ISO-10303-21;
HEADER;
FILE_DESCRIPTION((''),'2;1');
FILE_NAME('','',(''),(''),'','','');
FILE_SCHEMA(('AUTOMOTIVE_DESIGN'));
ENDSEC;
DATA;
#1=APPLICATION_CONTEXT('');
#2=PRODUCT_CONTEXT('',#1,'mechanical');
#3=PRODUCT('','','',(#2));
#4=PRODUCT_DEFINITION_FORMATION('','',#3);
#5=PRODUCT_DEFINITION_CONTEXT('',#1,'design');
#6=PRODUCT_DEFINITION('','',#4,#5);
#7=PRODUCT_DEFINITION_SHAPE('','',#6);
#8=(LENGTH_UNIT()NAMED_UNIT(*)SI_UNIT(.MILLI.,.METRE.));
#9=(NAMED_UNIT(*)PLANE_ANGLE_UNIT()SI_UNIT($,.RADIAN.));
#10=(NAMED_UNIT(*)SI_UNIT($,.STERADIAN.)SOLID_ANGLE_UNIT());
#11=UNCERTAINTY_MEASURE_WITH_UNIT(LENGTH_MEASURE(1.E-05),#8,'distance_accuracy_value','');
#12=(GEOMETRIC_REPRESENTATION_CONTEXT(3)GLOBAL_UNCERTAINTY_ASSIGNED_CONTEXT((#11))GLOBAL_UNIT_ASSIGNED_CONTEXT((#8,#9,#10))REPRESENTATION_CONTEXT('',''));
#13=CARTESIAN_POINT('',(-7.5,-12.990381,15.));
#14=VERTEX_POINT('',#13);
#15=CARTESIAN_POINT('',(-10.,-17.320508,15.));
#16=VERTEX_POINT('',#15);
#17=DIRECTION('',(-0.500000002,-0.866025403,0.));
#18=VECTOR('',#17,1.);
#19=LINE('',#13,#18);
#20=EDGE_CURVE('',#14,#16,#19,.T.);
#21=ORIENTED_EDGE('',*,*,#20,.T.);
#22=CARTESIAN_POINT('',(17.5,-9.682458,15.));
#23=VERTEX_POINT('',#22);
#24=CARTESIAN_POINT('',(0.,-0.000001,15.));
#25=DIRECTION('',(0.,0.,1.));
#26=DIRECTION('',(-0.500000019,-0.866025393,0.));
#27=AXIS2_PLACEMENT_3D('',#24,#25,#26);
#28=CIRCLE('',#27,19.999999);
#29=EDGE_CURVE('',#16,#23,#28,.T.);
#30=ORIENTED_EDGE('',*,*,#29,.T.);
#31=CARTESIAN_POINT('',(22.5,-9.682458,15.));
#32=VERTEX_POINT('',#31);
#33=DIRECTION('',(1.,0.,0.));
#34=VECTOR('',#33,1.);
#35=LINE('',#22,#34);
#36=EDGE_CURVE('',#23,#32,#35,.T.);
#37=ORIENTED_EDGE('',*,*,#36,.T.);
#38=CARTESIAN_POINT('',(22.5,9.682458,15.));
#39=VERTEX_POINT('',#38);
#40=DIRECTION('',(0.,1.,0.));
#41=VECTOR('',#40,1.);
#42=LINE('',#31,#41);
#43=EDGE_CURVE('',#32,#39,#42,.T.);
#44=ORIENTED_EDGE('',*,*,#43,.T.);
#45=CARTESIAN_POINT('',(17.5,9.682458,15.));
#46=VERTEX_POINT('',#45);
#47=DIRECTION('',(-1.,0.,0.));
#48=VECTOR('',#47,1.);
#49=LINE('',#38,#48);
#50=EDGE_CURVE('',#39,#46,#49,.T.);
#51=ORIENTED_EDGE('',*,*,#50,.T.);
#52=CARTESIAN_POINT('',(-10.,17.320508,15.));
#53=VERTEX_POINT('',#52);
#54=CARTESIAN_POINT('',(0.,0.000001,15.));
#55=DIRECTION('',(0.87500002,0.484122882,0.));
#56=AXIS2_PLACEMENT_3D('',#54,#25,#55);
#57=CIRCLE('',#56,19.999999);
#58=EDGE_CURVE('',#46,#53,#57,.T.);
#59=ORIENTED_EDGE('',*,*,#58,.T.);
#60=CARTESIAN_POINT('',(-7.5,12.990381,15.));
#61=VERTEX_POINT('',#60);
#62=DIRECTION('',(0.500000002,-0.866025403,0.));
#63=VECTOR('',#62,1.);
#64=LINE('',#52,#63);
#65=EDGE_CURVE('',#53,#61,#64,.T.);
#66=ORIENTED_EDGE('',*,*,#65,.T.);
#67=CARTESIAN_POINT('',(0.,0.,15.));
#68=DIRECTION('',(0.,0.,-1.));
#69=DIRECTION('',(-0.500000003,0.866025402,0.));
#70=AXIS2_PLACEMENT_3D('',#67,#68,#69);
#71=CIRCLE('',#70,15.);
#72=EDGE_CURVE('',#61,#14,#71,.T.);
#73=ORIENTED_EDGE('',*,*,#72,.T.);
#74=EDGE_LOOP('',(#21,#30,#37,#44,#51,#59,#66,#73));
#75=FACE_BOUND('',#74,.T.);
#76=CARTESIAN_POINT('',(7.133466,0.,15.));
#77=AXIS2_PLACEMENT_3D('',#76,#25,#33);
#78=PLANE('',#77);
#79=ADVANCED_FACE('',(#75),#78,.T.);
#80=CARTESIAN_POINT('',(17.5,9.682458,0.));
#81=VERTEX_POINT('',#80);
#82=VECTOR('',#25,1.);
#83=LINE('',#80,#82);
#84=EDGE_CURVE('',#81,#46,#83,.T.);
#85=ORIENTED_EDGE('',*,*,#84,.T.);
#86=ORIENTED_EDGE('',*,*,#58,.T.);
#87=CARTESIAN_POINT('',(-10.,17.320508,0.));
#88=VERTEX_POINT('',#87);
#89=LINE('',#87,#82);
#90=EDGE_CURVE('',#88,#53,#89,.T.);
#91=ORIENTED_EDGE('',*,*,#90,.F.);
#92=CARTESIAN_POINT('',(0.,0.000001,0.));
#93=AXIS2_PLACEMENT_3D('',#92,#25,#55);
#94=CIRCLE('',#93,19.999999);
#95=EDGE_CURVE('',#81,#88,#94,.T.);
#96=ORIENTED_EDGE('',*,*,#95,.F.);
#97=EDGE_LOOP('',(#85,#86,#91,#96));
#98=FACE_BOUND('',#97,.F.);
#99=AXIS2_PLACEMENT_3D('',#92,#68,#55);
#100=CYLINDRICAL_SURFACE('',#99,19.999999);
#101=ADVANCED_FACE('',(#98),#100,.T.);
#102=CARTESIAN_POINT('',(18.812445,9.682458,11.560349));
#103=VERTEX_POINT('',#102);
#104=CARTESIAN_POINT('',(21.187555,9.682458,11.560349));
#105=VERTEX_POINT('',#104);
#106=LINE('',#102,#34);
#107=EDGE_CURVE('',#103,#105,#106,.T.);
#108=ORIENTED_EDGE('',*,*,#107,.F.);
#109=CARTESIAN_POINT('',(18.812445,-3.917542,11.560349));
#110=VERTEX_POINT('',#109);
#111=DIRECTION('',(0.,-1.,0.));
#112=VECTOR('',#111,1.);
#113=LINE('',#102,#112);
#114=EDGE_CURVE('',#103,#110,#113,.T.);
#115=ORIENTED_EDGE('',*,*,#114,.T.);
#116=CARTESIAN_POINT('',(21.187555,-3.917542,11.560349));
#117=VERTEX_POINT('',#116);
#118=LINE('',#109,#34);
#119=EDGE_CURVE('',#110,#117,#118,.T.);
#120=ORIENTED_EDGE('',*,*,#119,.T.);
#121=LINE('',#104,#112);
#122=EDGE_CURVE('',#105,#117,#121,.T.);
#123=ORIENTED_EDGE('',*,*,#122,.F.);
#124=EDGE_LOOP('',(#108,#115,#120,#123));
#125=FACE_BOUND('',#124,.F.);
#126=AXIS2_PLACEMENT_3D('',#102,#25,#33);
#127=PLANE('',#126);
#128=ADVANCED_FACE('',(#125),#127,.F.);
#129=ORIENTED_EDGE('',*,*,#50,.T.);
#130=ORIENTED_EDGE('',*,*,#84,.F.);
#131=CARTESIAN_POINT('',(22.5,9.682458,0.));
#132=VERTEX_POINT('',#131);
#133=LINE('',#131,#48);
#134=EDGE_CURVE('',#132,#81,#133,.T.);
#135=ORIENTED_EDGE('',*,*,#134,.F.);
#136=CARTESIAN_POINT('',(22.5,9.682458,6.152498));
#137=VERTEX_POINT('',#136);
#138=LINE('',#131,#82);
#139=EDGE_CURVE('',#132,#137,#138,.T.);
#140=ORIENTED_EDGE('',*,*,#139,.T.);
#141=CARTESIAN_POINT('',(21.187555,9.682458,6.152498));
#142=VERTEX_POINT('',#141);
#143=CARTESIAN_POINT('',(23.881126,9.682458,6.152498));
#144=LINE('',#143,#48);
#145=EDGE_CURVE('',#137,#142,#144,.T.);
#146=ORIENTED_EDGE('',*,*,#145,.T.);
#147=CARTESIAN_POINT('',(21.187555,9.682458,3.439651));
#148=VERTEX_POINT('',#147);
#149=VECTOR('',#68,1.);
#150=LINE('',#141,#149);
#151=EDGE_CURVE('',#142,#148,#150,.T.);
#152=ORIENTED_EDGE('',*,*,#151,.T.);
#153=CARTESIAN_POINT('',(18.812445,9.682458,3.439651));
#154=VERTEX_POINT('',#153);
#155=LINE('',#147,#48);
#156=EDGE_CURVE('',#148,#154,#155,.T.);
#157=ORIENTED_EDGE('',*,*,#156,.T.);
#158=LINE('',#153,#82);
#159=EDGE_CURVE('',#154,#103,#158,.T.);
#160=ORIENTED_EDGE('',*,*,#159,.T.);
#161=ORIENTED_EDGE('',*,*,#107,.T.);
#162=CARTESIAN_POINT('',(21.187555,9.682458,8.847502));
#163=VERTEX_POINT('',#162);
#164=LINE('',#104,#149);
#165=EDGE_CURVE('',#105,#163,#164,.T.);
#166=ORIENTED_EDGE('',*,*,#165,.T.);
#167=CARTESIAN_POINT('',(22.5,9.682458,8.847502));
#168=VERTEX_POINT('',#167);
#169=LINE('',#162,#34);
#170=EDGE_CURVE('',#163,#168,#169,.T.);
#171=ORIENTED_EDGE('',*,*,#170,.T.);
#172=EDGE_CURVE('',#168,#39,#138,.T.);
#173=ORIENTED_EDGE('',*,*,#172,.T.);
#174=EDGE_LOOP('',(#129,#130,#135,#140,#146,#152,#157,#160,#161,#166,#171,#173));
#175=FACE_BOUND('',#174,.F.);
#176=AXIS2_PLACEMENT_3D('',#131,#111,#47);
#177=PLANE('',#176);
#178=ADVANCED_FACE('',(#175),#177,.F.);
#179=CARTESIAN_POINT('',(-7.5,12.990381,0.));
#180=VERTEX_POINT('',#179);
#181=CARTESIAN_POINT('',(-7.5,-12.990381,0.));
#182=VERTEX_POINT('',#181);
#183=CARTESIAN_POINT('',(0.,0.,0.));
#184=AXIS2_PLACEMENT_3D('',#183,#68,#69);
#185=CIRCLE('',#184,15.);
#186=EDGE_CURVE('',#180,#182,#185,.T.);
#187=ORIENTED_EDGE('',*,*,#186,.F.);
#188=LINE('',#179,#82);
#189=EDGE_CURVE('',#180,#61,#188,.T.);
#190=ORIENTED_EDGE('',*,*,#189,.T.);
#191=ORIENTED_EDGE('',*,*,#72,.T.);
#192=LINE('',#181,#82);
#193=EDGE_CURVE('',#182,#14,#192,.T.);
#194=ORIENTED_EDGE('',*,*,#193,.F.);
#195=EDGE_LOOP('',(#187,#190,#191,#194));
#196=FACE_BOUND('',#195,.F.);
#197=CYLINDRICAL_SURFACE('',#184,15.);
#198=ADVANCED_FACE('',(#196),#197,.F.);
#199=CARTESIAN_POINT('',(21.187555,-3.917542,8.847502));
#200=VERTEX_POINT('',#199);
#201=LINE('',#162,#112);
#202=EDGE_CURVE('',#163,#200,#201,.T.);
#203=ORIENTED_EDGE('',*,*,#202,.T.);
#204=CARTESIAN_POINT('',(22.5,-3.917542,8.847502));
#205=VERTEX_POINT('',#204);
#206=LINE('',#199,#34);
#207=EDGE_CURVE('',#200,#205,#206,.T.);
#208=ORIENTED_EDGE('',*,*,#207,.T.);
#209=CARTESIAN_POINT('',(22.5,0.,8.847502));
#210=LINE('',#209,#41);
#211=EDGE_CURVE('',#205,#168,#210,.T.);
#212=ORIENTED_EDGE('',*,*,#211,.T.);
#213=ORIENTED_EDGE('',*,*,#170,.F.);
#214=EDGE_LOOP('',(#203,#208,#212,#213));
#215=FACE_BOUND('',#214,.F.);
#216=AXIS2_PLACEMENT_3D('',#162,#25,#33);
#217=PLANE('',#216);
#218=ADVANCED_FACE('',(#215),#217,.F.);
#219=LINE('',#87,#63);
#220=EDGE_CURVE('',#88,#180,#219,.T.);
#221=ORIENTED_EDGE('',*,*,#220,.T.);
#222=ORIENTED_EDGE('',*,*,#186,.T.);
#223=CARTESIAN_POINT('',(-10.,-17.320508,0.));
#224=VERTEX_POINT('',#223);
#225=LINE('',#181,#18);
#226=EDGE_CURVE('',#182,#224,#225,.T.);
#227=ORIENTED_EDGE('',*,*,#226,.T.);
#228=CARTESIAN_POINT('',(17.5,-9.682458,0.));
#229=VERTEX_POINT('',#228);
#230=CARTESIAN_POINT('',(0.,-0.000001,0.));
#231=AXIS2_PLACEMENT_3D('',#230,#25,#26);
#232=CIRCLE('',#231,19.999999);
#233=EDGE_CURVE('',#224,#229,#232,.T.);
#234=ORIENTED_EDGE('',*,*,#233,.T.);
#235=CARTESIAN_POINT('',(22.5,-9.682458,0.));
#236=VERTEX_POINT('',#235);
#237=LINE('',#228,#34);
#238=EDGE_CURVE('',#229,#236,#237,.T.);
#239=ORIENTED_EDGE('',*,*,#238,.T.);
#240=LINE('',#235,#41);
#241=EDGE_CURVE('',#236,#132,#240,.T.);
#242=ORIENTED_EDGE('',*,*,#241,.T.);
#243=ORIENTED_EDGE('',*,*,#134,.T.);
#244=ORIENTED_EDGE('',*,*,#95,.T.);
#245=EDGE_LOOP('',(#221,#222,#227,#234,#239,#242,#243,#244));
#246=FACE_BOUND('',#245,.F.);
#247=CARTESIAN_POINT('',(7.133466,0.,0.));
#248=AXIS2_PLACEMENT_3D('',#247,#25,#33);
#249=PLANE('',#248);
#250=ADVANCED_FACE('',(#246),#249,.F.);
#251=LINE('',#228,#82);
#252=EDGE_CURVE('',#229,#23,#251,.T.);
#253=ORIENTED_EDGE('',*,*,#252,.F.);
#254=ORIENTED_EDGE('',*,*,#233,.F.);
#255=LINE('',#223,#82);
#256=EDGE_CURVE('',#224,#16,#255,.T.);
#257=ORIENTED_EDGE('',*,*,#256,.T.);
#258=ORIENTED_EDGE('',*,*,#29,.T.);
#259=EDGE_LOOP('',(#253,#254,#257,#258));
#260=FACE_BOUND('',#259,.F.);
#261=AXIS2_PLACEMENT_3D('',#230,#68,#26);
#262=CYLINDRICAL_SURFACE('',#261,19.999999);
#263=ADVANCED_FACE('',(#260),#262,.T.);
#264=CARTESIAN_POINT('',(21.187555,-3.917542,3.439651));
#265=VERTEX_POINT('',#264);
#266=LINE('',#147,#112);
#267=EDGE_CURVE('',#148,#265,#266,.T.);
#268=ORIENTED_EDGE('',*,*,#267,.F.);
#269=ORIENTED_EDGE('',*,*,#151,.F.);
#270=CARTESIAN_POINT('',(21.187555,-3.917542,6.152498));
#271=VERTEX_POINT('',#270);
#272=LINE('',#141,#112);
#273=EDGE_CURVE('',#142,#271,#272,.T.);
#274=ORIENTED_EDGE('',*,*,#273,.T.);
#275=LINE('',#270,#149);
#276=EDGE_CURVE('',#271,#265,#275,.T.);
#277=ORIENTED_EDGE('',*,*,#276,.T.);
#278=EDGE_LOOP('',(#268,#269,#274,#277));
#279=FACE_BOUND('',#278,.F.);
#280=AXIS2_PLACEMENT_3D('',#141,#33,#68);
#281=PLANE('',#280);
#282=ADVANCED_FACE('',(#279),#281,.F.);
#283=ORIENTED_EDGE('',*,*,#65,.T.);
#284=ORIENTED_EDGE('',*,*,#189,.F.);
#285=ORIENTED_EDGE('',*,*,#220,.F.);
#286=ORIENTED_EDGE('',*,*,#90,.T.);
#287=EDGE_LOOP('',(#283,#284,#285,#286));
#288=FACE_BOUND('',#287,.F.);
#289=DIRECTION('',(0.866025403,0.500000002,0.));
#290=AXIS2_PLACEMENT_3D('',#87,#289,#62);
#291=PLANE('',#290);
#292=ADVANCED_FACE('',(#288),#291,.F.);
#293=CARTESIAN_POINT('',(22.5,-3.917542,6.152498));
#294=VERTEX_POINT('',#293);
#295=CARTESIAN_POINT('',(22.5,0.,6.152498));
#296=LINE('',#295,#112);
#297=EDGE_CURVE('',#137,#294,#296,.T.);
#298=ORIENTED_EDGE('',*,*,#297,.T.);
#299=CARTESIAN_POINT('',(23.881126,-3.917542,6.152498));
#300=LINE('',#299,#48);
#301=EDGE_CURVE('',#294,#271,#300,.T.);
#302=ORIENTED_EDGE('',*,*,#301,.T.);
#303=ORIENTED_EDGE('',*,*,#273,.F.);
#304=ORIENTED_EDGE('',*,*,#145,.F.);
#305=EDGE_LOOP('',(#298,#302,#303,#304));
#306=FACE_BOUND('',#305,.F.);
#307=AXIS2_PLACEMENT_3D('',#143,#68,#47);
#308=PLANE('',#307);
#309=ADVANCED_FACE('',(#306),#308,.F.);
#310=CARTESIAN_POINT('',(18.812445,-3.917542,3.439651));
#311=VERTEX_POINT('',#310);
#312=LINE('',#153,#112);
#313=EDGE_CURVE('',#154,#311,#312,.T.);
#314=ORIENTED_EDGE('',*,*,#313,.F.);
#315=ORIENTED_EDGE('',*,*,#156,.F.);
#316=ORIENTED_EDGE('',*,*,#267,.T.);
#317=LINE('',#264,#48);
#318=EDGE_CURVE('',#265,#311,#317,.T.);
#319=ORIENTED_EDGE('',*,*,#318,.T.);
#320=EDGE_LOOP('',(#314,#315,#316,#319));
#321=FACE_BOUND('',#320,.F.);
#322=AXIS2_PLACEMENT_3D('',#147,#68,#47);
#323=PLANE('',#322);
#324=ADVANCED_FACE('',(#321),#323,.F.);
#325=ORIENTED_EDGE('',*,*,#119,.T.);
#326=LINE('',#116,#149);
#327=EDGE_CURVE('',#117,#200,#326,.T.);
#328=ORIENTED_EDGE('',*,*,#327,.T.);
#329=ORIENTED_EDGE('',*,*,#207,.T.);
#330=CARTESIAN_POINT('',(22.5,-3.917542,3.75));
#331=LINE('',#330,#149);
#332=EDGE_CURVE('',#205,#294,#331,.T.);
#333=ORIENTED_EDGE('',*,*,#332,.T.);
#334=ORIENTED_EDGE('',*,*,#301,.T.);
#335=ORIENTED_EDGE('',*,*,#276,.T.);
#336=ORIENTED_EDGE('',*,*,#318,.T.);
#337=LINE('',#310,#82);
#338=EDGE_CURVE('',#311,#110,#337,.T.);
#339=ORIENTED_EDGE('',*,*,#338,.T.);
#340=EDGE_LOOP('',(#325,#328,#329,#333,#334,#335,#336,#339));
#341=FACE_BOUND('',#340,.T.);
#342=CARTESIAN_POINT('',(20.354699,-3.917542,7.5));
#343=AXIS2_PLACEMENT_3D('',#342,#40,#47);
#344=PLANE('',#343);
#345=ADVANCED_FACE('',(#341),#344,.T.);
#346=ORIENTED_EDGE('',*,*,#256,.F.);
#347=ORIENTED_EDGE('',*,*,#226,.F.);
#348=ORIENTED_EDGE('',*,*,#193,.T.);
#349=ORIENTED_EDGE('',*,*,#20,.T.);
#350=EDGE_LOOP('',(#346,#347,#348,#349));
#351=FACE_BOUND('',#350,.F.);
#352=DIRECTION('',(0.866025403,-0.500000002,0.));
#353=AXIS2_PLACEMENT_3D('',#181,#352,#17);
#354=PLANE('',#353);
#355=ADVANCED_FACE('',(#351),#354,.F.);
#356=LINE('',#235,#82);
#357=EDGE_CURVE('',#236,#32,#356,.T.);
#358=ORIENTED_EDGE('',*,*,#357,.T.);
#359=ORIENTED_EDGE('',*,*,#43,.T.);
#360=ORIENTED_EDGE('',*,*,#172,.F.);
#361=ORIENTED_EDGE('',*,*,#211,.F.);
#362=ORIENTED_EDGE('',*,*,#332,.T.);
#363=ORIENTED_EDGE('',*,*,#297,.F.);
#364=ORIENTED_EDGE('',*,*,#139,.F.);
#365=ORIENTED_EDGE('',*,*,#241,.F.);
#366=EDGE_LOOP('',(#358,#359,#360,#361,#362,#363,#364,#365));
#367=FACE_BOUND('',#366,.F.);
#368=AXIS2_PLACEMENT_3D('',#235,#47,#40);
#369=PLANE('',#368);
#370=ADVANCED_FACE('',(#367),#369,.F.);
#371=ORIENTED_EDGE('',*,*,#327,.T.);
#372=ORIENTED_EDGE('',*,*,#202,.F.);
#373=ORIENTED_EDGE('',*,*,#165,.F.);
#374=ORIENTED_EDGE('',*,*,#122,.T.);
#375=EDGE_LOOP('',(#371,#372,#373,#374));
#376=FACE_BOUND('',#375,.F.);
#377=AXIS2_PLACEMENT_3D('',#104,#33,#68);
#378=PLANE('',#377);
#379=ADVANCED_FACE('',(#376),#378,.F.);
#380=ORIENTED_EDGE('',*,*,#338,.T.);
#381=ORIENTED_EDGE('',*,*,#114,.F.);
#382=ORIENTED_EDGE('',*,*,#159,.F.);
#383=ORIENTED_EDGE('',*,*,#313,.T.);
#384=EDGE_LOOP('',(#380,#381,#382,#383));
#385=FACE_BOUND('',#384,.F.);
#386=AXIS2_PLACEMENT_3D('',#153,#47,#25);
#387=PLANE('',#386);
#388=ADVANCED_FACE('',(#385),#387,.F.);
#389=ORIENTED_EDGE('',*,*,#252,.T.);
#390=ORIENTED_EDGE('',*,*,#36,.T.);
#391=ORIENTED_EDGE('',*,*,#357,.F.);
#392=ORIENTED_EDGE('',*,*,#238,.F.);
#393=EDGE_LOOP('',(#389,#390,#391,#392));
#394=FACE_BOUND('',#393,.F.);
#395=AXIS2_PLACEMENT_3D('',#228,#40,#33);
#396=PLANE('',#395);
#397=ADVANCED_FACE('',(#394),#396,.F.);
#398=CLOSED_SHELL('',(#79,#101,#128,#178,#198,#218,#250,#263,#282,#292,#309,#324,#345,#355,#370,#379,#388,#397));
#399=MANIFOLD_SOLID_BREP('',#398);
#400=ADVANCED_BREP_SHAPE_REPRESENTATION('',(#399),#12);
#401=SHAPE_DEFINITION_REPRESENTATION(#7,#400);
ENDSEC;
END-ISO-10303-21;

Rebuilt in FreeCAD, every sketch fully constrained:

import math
import FreeCAD as App
import Part
import Sketcher
Q = App.Units.Quantity

doc = App.newDocument("Part")
body = doc.addObject("PartDesign::Body", "Body")

# Sketch on XY plane
sketch1 = body.newObject("Sketcher::SketchObject", "Sketch")
sketch1.AttachmentSupport = (doc.getObject("XY_Plane"), [""])
sketch1.MapMode = "FlatFace"
sketch1.addGeometry([
    Part.ArcOfCircle(Part.Circle(App.Vector(0, 0, 0), App.Vector(0, 0, 1), 15), math.radians(-120), math.radians(120)),  # 0
    Part.LineSegment(App.Vector(-7.5, -12.990381, 0), App.Vector(-10, -17.320508, 0)),  # 1
    Part.ArcOfCircle(Part.Circle(App.Vector(0, -0.000001, 0), App.Vector(0, 0, 1), 19.999999), math.radians(-120.000001), math.radians(-28.955022)),  # 2
    Part.LineSegment(App.Vector(17.5, -9.682458, 0), App.Vector(22.5, -9.682458, 0)),  # 3
    Part.LineSegment(App.Vector(22.5, -9.682458, 0), App.Vector(22.5, 9.682458, 0)),  # 4
    Part.LineSegment(App.Vector(22.5, 9.682458, 0), App.Vector(17.5, 9.682458, 0)),  # 5
    Part.ArcOfCircle(Part.Circle(App.Vector(0, 0.000001, 0), App.Vector(0, 0, 1), 19.999999), math.radians(28.955022), math.radians(120.000001)),  # 6
    Part.LineSegment(App.Vector(-10, 17.320508, 0), App.Vector(-7.5, 12.990381, 0)),  # 7
], False)
sketch1.addConstraint([
    Sketcher.Constraint("Coincident", 0, 1, 1, 1),
    Sketcher.Constraint("Coincident", 1, 2, 2, 1),
    Sketcher.Constraint("Coincident", 2, 2, 3, 1),
    Sketcher.Constraint("Coincident", 3, 2, 4, 1),
    Sketcher.Constraint("Coincident", 4, 2, 5, 1),
    Sketcher.Constraint("Coincident", 5, 2, 6, 1),
    Sketcher.Constraint("Coincident", 6, 2, 7, 1),
    Sketcher.Constraint("Coincident", 7, 2, 0, 2),
    Sketcher.Constraint("Horizontal", 3),
    Sketcher.Constraint("Vertical", 4),
    Sketcher.Constraint("Horizontal", 5),
    Sketcher.Constraint("Coincident", 0, 3, -1, 1),
    Sketcher.Constraint("Coincident", 2, 3, -1, 1),
    Sketcher.Constraint("Coincident", 6, 3, -1, 1),
    Sketcher.Constraint("Equal", 2, 6),
    Sketcher.Constraint("Vertical", 2, 2, 5, 2),
    Sketcher.Constraint("Vertical", 1, 2, 6, 2),
    Sketcher.Constraint("Vertical", 0, 1, 7, 2),
    Sketcher.Constraint("Radius", 0, Q("15 mm")),
    Sketcher.Constraint("Radius", 2, Q("19.999999 mm")),
    Sketcher.Constraint("DistanceX", 3, 1, 3, 2, Q("5 mm")),
    Sketcher.Constraint("Angle", 1, Q("-120 deg")),
    Sketcher.Constraint("DistanceX", 1, 2, -1, 1, Q("10 mm")),
    Sketcher.Constraint("DistanceX", 0, 1, 2, 2, Q("25 mm")),
])
pad1 = body.newObject("PartDesign::Pad", "Pad")
pad1.Profile = sketch1
pad1.Length = 15

# Sketch on XZ plane
sketch2 = body.newObject("Sketcher::SketchObject", "Sketch001")
sketch2.AttachmentSupport = (doc.getObject("XZ_Plane"), [""])
sketch2.MapMode = "FlatFace"
sketch2.AttachmentOffset = App.Placement(App.Vector(0, 0, -9.682458), App.Rotation())
sketch2.addGeometry([
    Part.LineSegment(App.Vector(21.187555, 6.152498, 0), App.Vector(21.187555, 3.439651, 0)),  # 0
    Part.LineSegment(App.Vector(21.187555, 3.439651, 0), App.Vector(18.812445, 3.439651, 0)),  # 1
    Part.LineSegment(App.Vector(18.812445, 3.439651, 0), App.Vector(18.812445, 11.560349, 0)),  # 2
    Part.LineSegment(App.Vector(18.812445, 11.560349, 0), App.Vector(21.187555, 11.560349, 0)),  # 3
    Part.LineSegment(App.Vector(21.187555, 11.560349, 0), App.Vector(21.187555, 8.847502, 0)),  # 4
    Part.LineSegment(App.Vector(21.187555, 8.847502, 0), App.Vector(23.881126, 8.847502, 0)),  # 5
    Part.LineSegment(App.Vector(23.881126, 8.847502, 0), App.Vector(23.881126, 6.152498, 0)),  # 6
    Part.LineSegment(App.Vector(23.881126, 6.152498, 0), App.Vector(21.187555, 6.152498, 0)),  # 7
], False)
sketch2.addConstraint([
    Sketcher.Constraint("Coincident", 0, 2, 1, 1),
    Sketcher.Constraint("Coincident", 1, 2, 2, 1),
    Sketcher.Constraint("Coincident", 2, 2, 3, 1),
    Sketcher.Constraint("Coincident", 3, 2, 4, 1),
    Sketcher.Constraint("Coincident", 4, 2, 5, 1),
    Sketcher.Constraint("Coincident", 5, 2, 6, 1),
    Sketcher.Constraint("Coincident", 6, 2, 7, 1),
    Sketcher.Constraint("Coincident", 7, 2, 0, 1),
    Sketcher.Constraint("Vertical", 0),
    Sketcher.Constraint("Horizontal", 1),
    Sketcher.Constraint("Vertical", 2),
    Sketcher.Constraint("Horizontal", 3),
    Sketcher.Constraint("Vertical", 4),
    Sketcher.Constraint("Horizontal", 5),
    Sketcher.Constraint("Vertical", 6),
    Sketcher.Constraint("Horizontal", 7),
    Sketcher.Constraint("Vertical", 0, 2, 3, 2),
    Sketcher.Constraint("Equal", 0, 4),
    Sketcher.Constraint("DistanceY", 2, 1, 2, 2, Q("8.120698 mm")),
    Sketcher.Constraint("DistanceX", 1, 2, 1, 1, Q("2.37511 mm")),
    Sketcher.Constraint("DistanceX", 5, 1, 5, 2, Q("2.693571 mm")),
    Sketcher.Constraint("DistanceY", 0, 2, 0, 1, Q("2.712847 mm")),
    Sketcher.Constraint("DistanceY", -1, 1, 0, 2, Q("3.439651 mm")),
    Sketcher.Constraint("DistanceX", -1, 1, 0, 2, Q("21.187555 mm")),
])
pocket1 = body.newObject("PartDesign::Pocket", "Pocket")
pocket1.Profile = sketch2
pocket1.Length = 13.6
pocket1.Reversed = True

doc.recompute()
